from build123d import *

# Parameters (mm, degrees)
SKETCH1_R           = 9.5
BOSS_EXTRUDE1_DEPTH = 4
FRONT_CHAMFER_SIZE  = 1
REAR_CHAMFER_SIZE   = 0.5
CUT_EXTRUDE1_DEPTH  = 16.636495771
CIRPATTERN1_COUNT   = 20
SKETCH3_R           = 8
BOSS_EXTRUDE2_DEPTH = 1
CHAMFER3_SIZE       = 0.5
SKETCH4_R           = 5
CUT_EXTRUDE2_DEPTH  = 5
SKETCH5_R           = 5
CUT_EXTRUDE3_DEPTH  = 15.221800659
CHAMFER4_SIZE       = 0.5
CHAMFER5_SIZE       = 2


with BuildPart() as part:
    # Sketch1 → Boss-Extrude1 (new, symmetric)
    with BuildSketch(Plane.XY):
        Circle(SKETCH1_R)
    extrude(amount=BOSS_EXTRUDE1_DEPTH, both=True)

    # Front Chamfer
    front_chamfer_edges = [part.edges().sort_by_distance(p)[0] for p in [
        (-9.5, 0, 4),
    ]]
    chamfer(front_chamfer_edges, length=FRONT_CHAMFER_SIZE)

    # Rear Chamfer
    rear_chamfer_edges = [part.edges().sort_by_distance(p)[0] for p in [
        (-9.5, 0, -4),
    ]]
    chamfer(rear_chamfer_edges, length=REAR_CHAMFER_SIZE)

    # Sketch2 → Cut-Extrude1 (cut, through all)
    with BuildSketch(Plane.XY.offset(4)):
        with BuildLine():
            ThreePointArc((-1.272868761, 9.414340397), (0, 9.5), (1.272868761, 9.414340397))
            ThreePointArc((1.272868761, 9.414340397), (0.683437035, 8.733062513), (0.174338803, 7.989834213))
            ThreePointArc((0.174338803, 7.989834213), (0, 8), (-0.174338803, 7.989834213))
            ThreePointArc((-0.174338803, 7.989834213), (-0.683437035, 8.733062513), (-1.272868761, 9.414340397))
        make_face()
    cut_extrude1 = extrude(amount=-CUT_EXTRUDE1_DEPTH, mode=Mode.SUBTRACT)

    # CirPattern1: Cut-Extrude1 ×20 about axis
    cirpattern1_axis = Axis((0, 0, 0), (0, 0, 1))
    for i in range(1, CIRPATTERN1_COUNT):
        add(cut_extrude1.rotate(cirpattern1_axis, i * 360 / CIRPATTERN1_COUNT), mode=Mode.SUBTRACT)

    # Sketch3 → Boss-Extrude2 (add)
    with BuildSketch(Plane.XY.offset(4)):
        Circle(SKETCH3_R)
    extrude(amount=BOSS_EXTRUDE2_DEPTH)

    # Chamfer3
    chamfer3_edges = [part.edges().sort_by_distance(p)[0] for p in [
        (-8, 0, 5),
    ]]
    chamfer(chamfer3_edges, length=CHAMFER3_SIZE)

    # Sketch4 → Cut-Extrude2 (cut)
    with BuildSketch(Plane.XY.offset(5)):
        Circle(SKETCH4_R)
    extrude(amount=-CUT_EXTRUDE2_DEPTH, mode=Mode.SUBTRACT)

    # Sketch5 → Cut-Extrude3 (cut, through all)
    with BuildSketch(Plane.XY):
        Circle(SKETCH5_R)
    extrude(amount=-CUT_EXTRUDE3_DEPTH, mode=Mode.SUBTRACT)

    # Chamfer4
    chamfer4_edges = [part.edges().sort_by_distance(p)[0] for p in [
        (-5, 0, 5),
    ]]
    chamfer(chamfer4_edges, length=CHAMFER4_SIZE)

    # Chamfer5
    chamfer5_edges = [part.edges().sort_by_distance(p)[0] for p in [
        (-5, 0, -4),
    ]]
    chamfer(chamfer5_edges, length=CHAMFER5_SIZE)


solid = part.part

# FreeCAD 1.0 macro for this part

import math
import FreeCAD as App
import Part
import Sketcher
from FreeCAD import Vector


def edges_at(feature, points):
    """Names of the edges that pass closest to the given points."""
    edges = feature.Shape.Edges
    near = lambda p: min(range(len(edges)), key=lambda i: edges[i].distToShape(Part.Vertex(*p))[0])
    return sorted({f"Edge{near(p) + 1}" for p in points})

doc = App.newDocument("Part")
body = doc.addObject("PartDesign::Body", "Body")

sketch1 = body.newObject("Sketcher::SketchObject", "Sketch")
sketch1.AttachmentSupport = (doc.getObject("XY_Plane"), [""])
sketch1.MapMode = "FlatFace"
sketch1.addGeometry(Part.Circle(Vector(0, 0, 0), Vector(0, 0, 1), 10), False)
sketch1.addConstraint([
    Sketcher.Constraint("Coincident", 0, 3, -1, 1),
    Sketcher.Constraint("Diameter", 0, 19.0),
])
pad1 = body.newObject("PartDesign::Pad", "Pad")
pad1.Profile = sketch1
pad1.Length = 8
pad1.Midplane = True
doc.recompute()

chamfer = body.newObject("PartDesign::Chamfer", "Chamfer")
chamfer.Base = (pad1, edges_at(pad1, [(-9.5, 0, 4)]))
chamfer.Size = 1
doc.recompute()

chamfer2 = body.newObject("PartDesign::Chamfer", "Chamfer001")
chamfer2.Base = (chamfer, edges_at(chamfer, [(-9.5, 0, -4)]))
chamfer2.Size = 0.5

sketch2 = body.newObject("Sketcher::SketchObject", "Sketch001")
sketch2.AttachmentSupport = (doc.getObject("XY_Plane"), [""])
sketch2.MapMode = "FlatFace"
sketch2.AttachmentOffset = App.Placement(Vector(0, 0, 4), App.Rotation())
sketch2.addGeometry([
    Part.ArcOfCircle(Part.Circle(Vector(0, 0, 0), Vector(0, 0, 1), 9.5), math.radians(82.3), math.radians(97.7)),
    Part.ArcOfCircle(Part.Circle(Vector(-7.02, 3.85, 0), Vector(0, 0, 1), 8), math.radians(31.18), math.radians(44.09)),
    Part.ArcOfCircle(Part.Circle(Vector(0, 6.5, 0), Vector(0, 0, 1), 1.5), math.radians(83.33), math.radians(96.67)),
    Part.ArcOfCircle(Part.Circle(Vector(7.02, 3.85, 0), Vector(0, 0, 1), 8), math.radians(135.91), math.radians(148.82)),
], False)
sketch2.addConstraint([
    Sketcher.Constraint("Coincident", 0, 2, 1, 2),
    Sketcher.Constraint("Coincident", 1, 1, 2, 2),
    Sketcher.Constraint("Coincident", 2, 1, 3, 2),
    Sketcher.Constraint("Coincident", 3, 1, 0, 1),
    Sketcher.Constraint("Coincident", 0, 3, -1, 1),
    Sketcher.Constraint("Equal", 1, 3),
    Sketcher.Constraint("Symmetric", 1, 3, 3, 3, -2),
    Sketcher.Constraint("PointOnObject", 2, 3, -2),
    Sketcher.Constraint("Radius", 1, 8.0),
    Sketcher.Constraint("Radius", 0, 9.5),
    Sketcher.Constraint("Radius", 2, 1.5),
    Sketcher.Constraint("DistanceY", -1, 1, 2, 3, 6.5),
    Sketcher.Constraint("DistanceX", 1, 3, -1, 1, 7.018501),
    Sketcher.Constraint("DistanceY", -1, 1, 1, 3, 3.84768),
])
pocket1 = body.newObject("PartDesign::Pocket", "Pocket")
pocket1.Profile = sketch2
pocket1.Type = "ThroughAll"
doc.recompute()

polarpattern = body.newObject("PartDesign::PolarPattern", "PolarPattern")
polarpattern.Originals = [pocket1]
polarpattern.Axis = (doc.getObject("Z_Axis"), [""])
polarpattern.Angle = 360
polarpattern.Occurrences = 20
body.Tip = polarpattern

sketch3 = body.newObject("Sketcher::SketchObject", "Sketch002")
sketch3.AttachmentSupport = (doc.getObject("XY_Plane"), [""])
sketch3.MapMode = "FlatFace"
sketch3.AttachmentOffset = App.Placement(Vector(0, 0, 4), App.Rotation())
sketch3.addGeometry(Part.Circle(Vector(0, 0, 0), Vector(0, 0, 1), 8), False)
sketch3.addConstraint([
    Sketcher.Constraint("Coincident", 0, 3, -1, 1),
    Sketcher.Constraint("Diameter", 0, 16.0),
])
pad2 = body.newObject("PartDesign::Pad", "Pad001")
pad2.Profile = sketch3
pad2.Length = 1
doc.recompute()

chamfer3 = body.newObject("PartDesign::Chamfer", "Chamfer002")
chamfer3.Base = (pad2, edges_at(pad2, [(-8, 0, 5)]))
chamfer3.Size = 0.5

sketch4 = body.newObject("Sketcher::SketchObject", "Sketch003")
sketch4.AttachmentSupport = (doc.getObject("XY_Plane"), [""])
sketch4.MapMode = "FlatFace"
sketch4.AttachmentOffset = App.Placement(Vector(0, 0, 5), App.Rotation())
sketch4.addGeometry(Part.Circle(Vector(0, 0, 0), Vector(0, 0, 1), 5), False)
sketch4.addConstraint([
    Sketcher.Constraint("Coincident", 0, 3, -1, 1),
    Sketcher.Constraint("Diameter", 0, 10.0),
])
pocket2 = body.newObject("PartDesign::Pocket", "Pocket001")
pocket2.Profile = sketch4
pocket2.Length = 5

sketch5 = body.newObject("Sketcher::SketchObject", "Sketch004")
sketch5.AttachmentSupport = (doc.getObject("XY_Plane"), [""])
sketch5.MapMode = "FlatFace"
sketch5.addGeometry(Part.Circle(Vector(0, 0, 0), Vector(0, 0, 1), 5), False)
sketch5.addConstraint([
    Sketcher.Constraint("Coincident", 0, 3, -1, 1),
    Sketcher.Constraint("Diameter", 0, 10.0),
])
pocket3 = body.newObject("PartDesign::Pocket", "Pocket002")
pocket3.Profile = sketch5
pocket3.Type = "ThroughAll"
doc.recompute()

chamfer4 = body.newObject("PartDesign::Chamfer", "Chamfer003")
chamfer4.Base = (pocket3, edges_at(pocket3, [(-5, 0, 5)]))
chamfer4.Size = 0.5
doc.recompute()

chamfer5 = body.newObject("PartDesign::Chamfer", "Chamfer004")
chamfer5.Base = (chamfer4, edges_at(chamfer4, [(-5, 0, -4)]))
chamfer5.Size = 2

doc.recompute()
